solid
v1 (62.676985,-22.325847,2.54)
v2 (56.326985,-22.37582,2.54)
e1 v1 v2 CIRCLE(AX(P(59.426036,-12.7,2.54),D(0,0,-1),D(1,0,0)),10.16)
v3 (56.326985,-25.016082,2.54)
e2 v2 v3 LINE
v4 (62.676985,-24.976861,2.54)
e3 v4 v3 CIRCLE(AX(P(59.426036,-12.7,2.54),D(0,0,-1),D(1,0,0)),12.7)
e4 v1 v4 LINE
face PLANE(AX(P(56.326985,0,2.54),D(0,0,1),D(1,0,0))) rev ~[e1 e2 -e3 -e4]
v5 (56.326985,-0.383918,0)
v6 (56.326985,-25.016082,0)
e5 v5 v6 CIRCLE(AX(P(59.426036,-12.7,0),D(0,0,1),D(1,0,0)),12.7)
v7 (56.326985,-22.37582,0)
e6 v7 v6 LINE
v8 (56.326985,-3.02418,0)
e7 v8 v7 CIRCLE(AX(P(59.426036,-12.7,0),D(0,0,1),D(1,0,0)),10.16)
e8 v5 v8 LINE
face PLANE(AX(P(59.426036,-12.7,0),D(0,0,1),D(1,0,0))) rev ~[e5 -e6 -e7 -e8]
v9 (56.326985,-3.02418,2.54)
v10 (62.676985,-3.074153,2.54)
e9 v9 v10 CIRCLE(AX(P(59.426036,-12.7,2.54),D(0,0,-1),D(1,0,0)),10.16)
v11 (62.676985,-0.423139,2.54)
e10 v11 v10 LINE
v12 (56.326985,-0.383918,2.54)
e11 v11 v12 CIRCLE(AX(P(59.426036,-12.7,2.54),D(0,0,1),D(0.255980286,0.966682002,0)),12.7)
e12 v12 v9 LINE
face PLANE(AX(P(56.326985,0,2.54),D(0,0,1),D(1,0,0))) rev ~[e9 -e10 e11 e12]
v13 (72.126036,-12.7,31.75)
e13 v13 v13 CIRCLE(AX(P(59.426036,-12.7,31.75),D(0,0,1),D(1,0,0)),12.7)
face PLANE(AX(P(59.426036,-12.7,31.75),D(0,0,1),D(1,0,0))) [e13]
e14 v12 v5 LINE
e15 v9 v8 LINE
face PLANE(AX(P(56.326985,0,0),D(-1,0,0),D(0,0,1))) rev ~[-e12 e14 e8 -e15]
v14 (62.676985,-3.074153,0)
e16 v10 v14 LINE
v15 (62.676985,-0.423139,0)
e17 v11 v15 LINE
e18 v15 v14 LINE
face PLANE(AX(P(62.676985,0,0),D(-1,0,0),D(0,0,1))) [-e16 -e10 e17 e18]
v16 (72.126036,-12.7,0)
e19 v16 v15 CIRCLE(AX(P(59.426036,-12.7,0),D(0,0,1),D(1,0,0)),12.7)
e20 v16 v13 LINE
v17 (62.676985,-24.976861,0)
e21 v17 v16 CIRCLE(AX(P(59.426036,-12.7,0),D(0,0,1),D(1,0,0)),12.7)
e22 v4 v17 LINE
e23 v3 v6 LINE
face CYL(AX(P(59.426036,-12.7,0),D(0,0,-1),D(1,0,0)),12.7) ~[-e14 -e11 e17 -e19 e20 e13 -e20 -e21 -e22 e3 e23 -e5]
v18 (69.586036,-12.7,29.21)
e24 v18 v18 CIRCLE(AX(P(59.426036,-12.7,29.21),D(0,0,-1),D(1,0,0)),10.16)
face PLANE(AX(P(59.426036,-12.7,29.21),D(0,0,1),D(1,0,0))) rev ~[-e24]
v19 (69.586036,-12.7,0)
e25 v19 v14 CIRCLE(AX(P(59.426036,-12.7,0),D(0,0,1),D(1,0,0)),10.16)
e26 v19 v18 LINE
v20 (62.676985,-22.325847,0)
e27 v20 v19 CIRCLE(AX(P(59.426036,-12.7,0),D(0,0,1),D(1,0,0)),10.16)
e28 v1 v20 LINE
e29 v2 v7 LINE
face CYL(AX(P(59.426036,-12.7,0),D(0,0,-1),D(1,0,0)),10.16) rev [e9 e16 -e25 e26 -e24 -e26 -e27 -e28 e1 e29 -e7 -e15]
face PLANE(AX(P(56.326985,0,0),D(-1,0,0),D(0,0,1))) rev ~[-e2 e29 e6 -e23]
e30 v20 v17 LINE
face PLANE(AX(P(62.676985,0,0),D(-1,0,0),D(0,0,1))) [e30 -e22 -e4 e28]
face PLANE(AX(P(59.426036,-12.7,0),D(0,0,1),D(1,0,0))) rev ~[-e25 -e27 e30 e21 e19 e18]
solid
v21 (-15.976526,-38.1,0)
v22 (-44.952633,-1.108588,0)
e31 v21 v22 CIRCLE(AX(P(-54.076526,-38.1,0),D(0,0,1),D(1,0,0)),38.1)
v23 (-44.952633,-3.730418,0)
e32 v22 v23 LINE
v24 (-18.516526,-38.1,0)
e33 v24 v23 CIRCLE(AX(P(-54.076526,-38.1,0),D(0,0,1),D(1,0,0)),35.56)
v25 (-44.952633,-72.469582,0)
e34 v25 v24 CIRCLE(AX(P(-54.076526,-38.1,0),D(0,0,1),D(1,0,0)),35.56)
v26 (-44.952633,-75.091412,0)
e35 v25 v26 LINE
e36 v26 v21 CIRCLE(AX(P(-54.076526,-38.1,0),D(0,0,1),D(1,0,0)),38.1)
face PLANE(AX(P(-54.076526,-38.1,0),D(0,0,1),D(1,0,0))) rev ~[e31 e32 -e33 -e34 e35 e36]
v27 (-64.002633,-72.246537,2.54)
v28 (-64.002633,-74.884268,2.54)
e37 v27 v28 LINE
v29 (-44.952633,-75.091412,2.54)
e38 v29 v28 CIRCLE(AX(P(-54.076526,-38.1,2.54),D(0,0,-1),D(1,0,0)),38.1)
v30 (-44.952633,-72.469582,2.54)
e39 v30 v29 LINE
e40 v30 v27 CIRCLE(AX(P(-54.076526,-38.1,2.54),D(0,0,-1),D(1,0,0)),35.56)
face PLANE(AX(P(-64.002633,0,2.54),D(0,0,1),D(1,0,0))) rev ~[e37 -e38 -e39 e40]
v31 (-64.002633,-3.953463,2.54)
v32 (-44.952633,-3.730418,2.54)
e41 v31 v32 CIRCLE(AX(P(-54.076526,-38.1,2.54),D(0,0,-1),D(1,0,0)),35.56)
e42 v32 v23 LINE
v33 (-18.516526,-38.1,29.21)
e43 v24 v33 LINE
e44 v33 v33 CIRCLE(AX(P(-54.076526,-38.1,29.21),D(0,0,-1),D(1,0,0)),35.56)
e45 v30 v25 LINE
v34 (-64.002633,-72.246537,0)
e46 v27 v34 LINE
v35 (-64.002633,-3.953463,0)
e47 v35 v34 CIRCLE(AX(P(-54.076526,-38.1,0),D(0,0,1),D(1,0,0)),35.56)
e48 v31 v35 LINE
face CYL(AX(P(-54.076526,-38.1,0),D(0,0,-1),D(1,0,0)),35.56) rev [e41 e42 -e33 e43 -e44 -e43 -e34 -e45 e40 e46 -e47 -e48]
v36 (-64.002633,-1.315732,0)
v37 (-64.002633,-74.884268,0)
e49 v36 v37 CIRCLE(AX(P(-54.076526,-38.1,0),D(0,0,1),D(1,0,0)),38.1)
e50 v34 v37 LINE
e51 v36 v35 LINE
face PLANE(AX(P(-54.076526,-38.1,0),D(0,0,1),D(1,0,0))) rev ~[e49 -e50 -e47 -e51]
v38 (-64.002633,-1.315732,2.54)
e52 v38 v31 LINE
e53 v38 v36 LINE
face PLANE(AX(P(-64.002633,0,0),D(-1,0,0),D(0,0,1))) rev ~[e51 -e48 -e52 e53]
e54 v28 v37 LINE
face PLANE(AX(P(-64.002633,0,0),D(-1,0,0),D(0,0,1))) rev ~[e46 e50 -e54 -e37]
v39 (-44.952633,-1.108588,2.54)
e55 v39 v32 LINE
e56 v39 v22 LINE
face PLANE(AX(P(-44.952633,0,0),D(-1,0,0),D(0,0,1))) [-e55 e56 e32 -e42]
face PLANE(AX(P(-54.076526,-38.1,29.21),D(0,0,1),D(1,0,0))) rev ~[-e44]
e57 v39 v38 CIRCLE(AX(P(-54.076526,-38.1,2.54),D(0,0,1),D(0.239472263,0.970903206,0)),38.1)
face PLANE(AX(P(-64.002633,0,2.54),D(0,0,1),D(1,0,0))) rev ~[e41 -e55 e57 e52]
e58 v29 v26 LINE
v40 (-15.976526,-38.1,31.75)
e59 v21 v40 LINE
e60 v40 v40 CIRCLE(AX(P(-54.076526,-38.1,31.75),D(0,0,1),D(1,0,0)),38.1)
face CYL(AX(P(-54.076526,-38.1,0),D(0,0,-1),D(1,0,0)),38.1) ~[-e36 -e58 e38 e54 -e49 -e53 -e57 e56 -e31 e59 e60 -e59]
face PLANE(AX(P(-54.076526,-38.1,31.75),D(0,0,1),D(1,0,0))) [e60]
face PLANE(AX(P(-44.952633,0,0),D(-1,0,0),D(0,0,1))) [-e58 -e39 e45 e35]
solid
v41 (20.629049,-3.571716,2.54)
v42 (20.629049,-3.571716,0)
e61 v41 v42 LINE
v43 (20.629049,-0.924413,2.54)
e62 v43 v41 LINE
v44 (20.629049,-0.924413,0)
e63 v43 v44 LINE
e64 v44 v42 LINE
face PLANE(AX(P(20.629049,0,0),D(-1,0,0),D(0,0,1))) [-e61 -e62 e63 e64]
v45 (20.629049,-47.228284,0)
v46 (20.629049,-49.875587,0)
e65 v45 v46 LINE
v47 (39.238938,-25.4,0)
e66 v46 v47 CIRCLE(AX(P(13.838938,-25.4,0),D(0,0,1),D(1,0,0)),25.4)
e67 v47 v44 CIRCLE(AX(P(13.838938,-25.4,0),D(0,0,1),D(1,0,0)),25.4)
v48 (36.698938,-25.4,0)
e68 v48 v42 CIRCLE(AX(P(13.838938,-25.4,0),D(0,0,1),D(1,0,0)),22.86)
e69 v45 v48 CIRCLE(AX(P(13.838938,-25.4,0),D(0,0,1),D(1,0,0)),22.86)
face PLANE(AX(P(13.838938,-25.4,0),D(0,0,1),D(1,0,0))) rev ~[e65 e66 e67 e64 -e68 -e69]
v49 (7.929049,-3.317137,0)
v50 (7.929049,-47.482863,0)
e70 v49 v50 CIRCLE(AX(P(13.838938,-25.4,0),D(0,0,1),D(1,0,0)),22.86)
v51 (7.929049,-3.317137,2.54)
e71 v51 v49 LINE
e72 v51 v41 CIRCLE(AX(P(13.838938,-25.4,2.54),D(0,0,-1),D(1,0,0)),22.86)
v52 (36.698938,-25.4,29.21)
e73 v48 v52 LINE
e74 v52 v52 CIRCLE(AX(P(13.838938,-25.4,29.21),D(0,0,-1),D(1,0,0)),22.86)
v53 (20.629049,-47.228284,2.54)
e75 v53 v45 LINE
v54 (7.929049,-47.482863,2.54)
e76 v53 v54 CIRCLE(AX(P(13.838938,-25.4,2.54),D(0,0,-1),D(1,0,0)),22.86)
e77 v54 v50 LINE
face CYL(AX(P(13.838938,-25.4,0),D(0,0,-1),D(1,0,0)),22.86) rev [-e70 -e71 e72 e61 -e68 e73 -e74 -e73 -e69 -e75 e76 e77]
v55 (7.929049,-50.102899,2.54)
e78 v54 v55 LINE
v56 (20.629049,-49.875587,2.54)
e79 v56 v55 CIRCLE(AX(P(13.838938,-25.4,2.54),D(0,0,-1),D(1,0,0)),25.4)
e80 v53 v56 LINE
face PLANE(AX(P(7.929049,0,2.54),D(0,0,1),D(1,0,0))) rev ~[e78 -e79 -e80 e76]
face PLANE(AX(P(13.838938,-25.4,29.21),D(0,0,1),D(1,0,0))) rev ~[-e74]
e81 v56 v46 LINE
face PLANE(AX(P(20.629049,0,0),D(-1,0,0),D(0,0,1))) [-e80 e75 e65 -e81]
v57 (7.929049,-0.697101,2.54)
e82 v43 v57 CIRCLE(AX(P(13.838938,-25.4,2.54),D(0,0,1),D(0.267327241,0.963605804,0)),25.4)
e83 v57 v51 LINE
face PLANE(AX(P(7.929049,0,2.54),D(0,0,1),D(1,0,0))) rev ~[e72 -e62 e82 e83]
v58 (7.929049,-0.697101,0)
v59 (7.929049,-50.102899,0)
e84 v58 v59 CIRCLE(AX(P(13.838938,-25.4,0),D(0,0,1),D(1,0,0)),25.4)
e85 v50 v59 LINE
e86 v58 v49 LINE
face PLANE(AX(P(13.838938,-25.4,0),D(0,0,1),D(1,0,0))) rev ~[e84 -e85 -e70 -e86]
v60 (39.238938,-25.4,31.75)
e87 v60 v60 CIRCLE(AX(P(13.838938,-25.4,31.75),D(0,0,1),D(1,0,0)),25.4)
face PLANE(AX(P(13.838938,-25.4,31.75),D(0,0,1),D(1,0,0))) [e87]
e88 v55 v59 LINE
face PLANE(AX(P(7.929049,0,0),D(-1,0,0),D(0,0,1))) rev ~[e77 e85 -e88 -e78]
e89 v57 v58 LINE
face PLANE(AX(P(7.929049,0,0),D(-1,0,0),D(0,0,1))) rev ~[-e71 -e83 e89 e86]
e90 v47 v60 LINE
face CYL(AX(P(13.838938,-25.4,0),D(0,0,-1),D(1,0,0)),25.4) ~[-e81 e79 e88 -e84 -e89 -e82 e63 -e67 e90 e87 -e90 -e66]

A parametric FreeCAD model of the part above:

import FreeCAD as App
import Part
import Sketcher
Q = App.Units.Quantity


def faces_at(feature, points):
    """Names of the faces that lie closest to the given points."""
    faces = feature.Shape.Faces
    near = lambda p: min(range(len(faces)), key=lambda i: faces[i].distToShape(Part.Vertex(*p))[0])
    return sorted({f"Face{near(p) + 1}" for p in points})

doc = App.newDocument("Part")
params = doc.addObject("Spreadsheet::Sheet", "Params")
for row, (alias, value) in enumerate([
    ("sketch1_diameter", "3 in"),
    ("pad1_length", "1.25 in"),
    ("thickness_wall", "0.1 in"),
    ("sketch2_diameter", "2 in"),
    ("pad2_length", "1.25 in"),
    ("thickness2_wall", "0.1 in"),
    ("sketch3_diameter", "1 in"),
    ("pad3_length", "1.25 in"),
    ("thickness3_wall", "0.1 in"),
    ("sketch4_width", "0.5 in"),
    ("sketch4_height", "0.1 in"),
    ("sketch4_width2", "0.25 in"),
    ("sketch4_width3", "0.75 in"),
    ("pad4_length", "3.5 in"),
], start=1):
    params.set(f"A{row}", alias)
    params.set(f"B{row}", "=" + value)
    params.setAlias(f"B{row}", alias)

body = doc.addObject("PartDesign::Body", "Body")

# Sketch on XY plane
sketch1 = body.newObject("Sketcher::SketchObject", "Sketch")
sketch1.AttachmentSupport = (doc.getObject("XY_Plane"), [""])
sketch1.MapMode = "FlatFace"
sketch1.addGeometry(Part.Circle(App.Vector(-54.076526, -38.1, 0), App.Vector(0, 0, 1), 38.1), False)
sketch1.addConstraint([
    Sketcher.Constraint("Diameter", 0, Q("3 in")),
    Sketcher.Constraint("DistanceY", 0, 3, -1, 1, Q("1.5 in")),
    Sketcher.Constraint("DistanceX", 0, 3, -1, 1, Q("54.076526 mm")),
])
sketch1.setExpression("Constraints[0]", "Params.sketch1_diameter")
pad1 = body.newObject("PartDesign::Pad", "Pad")
pad1.Profile = sketch1
pad1.setExpression("Length", "Params.pad1_length")
doc.recompute()

thickness = body.newObject("PartDesign::Thickness", "Thickness")
thickness.Base = (pad1, faces_at(pad1, [(-54.077, -38.1, 0)]))
thickness.setExpression("Value", "Params.thickness_wall")
thickness.Reversed = True
thickness.Join = "Arc"
body2 = doc.addObject("PartDesign::Body", "Body001")

# Sketch on XY plane
sketch2 = body2.newObject("Sketcher::SketchObject", "Sketch001")
sketch2.AttachmentSupport = (doc.getObject("XY_Plane001"), [""])
sketch2.MapMode = "FlatFace"
sketch2.addGeometry(Part.Circle(App.Vector(13.838938, -25.4, 0), App.Vector(0, 0, 1), 25.4), False)
sketch2.addConstraint([
    Sketcher.Constraint("Diameter", 0, Q("2 in")),
    Sketcher.Constraint("DistanceY", 0, 3, -1, 1, Q("1 in")),
    Sketcher.Constraint("DistanceX", -1, 1, 0, 3, Q("13.838938 mm")),
])
sketch2.setExpression("Constraints[0]", "Params.sketch2_diameter")
pad2 = body2.newObject("PartDesign::Pad", "Pad001")
pad2.Profile = sketch2
pad2.setExpression("Length", "Params.pad2_length")
doc.recompute()

thickness2 = body2.newObject("PartDesign::Thickness", "Thickness001")
thickness2.Base = (pad2, faces_at(pad2, [(13.839, -25.4, 0)]))
thickness2.setExpression("Value", "Params.thickness2_wall")
thickness2.Reversed = True
thickness2.Join = "Arc"
body3 = doc.addObject("PartDesign::Body", "Body002")

# Sketch on XY plane
sketch3 = body3.newObject("Sketcher::SketchObject", "Sketch002")
sketch3.AttachmentSupport = (doc.getObject("XY_Plane002"), [""])
sketch3.MapMode = "FlatFace"
sketch3.addGeometry(Part.Circle(App.Vector(59.426036, -12.7, 0), App.Vector(0, 0, 1), 12.7), False)
sketch3.addConstraint([
    Sketcher.Constraint("Diameter", 0, Q("1 in")),
    Sketcher.Constraint("DistanceY", 0, 3, -1, 1, Q("0.5 in")),
    Sketcher.Constraint("DistanceX", -1, 1, 0, 3, Q("59.426036 mm")),
])
sketch3.setExpression("Constraints[0]", "Params.sketch3_diameter")
pad3 = body3.newObject("PartDesign::Pad", "Pad002")
pad3.Profile = sketch3
pad3.setExpression("Length", "Params.pad3_length")
doc.recompute()

thickness3 = body3.newObject("PartDesign::Thickness", "Thickness002")
thickness3.Base = (pad3, faces_at(pad3, [(59.426, -12.7, 0)]))
thickness3.setExpression("Value", "Params.thickness3_wall")
thickness3.Reversed = True
thickness3.Join = "Arc"
body4 = doc.addObject("PartDesign::Body", "Body003")
body4.AllowCompound = True

# Sketch on XZ plane
sketch4 = body4.newObject("Sketcher::SketchObject", "Sketch003")
sketch4.AttachmentSupport = (doc.getObject("XZ_Plane003"), [""])
sketch4.MapMode = "FlatFace"
sketch4.addGeometry([
    Part.LineSegment(App.Vector(56.326985, 2.54, 0), App.Vector(56.326985, 0, 0)),  # 0
    Part.LineSegment(App.Vector(56.326985, 0, 0), App.Vector(62.676985, 0, 0)),  # 1
    Part.LineSegment(App.Vector(62.676985, 0, 0), App.Vector(62.676985, 2.54, 0)),  # 2
    Part.LineSegment(App.Vector(62.676985, 2.54, 0), App.Vector(56.326985, 2.54, 0)),  # 3
    Part.LineSegment(App.Vector(7.929049, 2.54, 0), App.Vector(7.929049, 0, 0)),  # 4
    Part.LineSegment(App.Vector(7.929049, 0, 0), App.Vector(20.629049, 0, 0)),  # 5
    Part.LineSegment(App.Vector(20.629049, 0, 0), App.Vector(20.629049, 2.54, 0)),  # 6
    Part.LineSegment(App.Vector(20.629049, 2.54, 0), App.Vector(7.929049, 2.54, 0)),  # 7
    Part.LineSegment(App.Vector(-64.002633, 2.54, 0), App.Vector(-64.002633, 0, 0)),  # 8
    Part.LineSegment(App.Vector(-64.002633, 0, 0), App.Vector(-44.952633, 0, 0)),  # 9
    Part.LineSegment(App.Vector(-44.952633, 0, 0), App.Vector(-44.952633, 2.54, 0)),  # 10
    Part.LineSegment(App.Vector(-44.952633, 2.54, 0), App.Vector(-64.002633, 2.54, 0)),  # 11
], False)
sketch4.addConstraint([
    Sketcher.Constraint("Coincident", 0, 2, 1, 1),
    Sketcher.Constraint("Coincident", 1, 2, 2, 1),
    Sketcher.Constraint("Coincident", 2, 2, 3, 1),
    Sketcher.Constraint("Coincident", 3, 2, 0, 1),
    Sketcher.Constraint("Coincident", 4, 2, 5, 1),
    Sketcher.Constraint("Coincident", 5, 2, 6, 1),
    Sketcher.Constraint("Coincident", 6, 2, 7, 1),
    Sketcher.Constraint("Coincident", 7, 2, 4, 1),
    Sketcher.Constraint("Coincident", 8, 2, 9, 1),
    Sketcher.Constraint("Coincident", 9, 2, 10, 1),
    Sketcher.Constraint("Coincident", 10, 2, 11, 1),
    Sketcher.Constraint("Coincident", 11, 2, 8, 1),
    Sketcher.Constraint("Vertical", 0),
    Sketcher.Constraint("Horizontal", 1),
    Sketcher.Constraint("Vertical", 2),
    Sketcher.Constraint("Horizontal", 3),
    Sketcher.Constraint("Vertical", 4),
    Sketcher.Constraint("Horizontal", 5),
    Sketcher.Constraint("Vertical", 6),
    Sketcher.Constraint("Horizontal", 7),
    Sketcher.Constraint("Vertical", 8),
    Sketcher.Constraint("Horizontal", 9),
    Sketcher.Constraint("Vertical", 10),
    Sketcher.Constraint("Horizontal", 11),
    Sketcher.Constraint("PointOnObject", 0, 2, -1),
    Sketcher.Constraint("PointOnObject", 4, 2, -1),
    Sketcher.Constraint("PointOnObject", 8, 2, -1),
    Sketcher.Constraint("Horizontal", 3, 2, 6, 2),
    Sketcher.Constraint("Horizontal", 7, 2, 10, 2),
    Sketcher.Constraint("DistanceX", 5, 1, 5, 2, Q("0.5 in")),
    Sketcher.Constraint("DistanceY", 0, 2, 0, 1, Q("0.1 in")),
    Sketcher.Constraint("DistanceX", 1, 1, 1, 2, Q("0.25 in")),
    Sketcher.Constraint("DistanceX", 9, 1, 9, 2, Q("0.75 in")),
    Sketcher.Constraint("DistanceX", -1, 1, 4, 2, Q("7.929049 mm")),
    Sketcher.Constraint("DistanceX", 8, 2, 0, 2, Q("120.329618 mm")),
    Sketcher.Constraint("DistanceX", -1, 1, 0, 2, Q("56.326985 mm")),
])
sketch4.setExpression("Constraints[29]", "Params.sketch4_width")
sketch4.setExpression("Constraints[30]", "Params.sketch4_height")
sketch4.setExpression("Constraints[31]", "Params.sketch4_width2")
sketch4.setExpression("Constraints[32]", "Params.sketch4_width3")
pad4 = body4.newObject("PartDesign::Pad", "Pad003")
pad4.Profile = sketch4
pad4.setExpression("Length", "Params.pad4_length")
doc.recompute()

body5 = doc.addObject("PartDesign::Body", "Body004")
body5.BaseFeature = body4
boolean = body.newObject("PartDesign::Boolean", "Boolean")
boolean.Type = "Cut"
boolean.addObjects([body5])
doc.recompute()

body6 = doc.addObject("PartDesign::Body", "Body005")
body6.BaseFeature = body4
boolean2 = body2.newObject("PartDesign::Boolean", "Boolean001")
boolean2.Type = "Cut"
boolean2.addObjects([body6])
doc.recompute()

boolean3 = body3.newObject("PartDesign::Boolean", "Boolean002")
boolean3.Type = "Cut"
boolean3.addObjects([body4])

doc.recompute()
